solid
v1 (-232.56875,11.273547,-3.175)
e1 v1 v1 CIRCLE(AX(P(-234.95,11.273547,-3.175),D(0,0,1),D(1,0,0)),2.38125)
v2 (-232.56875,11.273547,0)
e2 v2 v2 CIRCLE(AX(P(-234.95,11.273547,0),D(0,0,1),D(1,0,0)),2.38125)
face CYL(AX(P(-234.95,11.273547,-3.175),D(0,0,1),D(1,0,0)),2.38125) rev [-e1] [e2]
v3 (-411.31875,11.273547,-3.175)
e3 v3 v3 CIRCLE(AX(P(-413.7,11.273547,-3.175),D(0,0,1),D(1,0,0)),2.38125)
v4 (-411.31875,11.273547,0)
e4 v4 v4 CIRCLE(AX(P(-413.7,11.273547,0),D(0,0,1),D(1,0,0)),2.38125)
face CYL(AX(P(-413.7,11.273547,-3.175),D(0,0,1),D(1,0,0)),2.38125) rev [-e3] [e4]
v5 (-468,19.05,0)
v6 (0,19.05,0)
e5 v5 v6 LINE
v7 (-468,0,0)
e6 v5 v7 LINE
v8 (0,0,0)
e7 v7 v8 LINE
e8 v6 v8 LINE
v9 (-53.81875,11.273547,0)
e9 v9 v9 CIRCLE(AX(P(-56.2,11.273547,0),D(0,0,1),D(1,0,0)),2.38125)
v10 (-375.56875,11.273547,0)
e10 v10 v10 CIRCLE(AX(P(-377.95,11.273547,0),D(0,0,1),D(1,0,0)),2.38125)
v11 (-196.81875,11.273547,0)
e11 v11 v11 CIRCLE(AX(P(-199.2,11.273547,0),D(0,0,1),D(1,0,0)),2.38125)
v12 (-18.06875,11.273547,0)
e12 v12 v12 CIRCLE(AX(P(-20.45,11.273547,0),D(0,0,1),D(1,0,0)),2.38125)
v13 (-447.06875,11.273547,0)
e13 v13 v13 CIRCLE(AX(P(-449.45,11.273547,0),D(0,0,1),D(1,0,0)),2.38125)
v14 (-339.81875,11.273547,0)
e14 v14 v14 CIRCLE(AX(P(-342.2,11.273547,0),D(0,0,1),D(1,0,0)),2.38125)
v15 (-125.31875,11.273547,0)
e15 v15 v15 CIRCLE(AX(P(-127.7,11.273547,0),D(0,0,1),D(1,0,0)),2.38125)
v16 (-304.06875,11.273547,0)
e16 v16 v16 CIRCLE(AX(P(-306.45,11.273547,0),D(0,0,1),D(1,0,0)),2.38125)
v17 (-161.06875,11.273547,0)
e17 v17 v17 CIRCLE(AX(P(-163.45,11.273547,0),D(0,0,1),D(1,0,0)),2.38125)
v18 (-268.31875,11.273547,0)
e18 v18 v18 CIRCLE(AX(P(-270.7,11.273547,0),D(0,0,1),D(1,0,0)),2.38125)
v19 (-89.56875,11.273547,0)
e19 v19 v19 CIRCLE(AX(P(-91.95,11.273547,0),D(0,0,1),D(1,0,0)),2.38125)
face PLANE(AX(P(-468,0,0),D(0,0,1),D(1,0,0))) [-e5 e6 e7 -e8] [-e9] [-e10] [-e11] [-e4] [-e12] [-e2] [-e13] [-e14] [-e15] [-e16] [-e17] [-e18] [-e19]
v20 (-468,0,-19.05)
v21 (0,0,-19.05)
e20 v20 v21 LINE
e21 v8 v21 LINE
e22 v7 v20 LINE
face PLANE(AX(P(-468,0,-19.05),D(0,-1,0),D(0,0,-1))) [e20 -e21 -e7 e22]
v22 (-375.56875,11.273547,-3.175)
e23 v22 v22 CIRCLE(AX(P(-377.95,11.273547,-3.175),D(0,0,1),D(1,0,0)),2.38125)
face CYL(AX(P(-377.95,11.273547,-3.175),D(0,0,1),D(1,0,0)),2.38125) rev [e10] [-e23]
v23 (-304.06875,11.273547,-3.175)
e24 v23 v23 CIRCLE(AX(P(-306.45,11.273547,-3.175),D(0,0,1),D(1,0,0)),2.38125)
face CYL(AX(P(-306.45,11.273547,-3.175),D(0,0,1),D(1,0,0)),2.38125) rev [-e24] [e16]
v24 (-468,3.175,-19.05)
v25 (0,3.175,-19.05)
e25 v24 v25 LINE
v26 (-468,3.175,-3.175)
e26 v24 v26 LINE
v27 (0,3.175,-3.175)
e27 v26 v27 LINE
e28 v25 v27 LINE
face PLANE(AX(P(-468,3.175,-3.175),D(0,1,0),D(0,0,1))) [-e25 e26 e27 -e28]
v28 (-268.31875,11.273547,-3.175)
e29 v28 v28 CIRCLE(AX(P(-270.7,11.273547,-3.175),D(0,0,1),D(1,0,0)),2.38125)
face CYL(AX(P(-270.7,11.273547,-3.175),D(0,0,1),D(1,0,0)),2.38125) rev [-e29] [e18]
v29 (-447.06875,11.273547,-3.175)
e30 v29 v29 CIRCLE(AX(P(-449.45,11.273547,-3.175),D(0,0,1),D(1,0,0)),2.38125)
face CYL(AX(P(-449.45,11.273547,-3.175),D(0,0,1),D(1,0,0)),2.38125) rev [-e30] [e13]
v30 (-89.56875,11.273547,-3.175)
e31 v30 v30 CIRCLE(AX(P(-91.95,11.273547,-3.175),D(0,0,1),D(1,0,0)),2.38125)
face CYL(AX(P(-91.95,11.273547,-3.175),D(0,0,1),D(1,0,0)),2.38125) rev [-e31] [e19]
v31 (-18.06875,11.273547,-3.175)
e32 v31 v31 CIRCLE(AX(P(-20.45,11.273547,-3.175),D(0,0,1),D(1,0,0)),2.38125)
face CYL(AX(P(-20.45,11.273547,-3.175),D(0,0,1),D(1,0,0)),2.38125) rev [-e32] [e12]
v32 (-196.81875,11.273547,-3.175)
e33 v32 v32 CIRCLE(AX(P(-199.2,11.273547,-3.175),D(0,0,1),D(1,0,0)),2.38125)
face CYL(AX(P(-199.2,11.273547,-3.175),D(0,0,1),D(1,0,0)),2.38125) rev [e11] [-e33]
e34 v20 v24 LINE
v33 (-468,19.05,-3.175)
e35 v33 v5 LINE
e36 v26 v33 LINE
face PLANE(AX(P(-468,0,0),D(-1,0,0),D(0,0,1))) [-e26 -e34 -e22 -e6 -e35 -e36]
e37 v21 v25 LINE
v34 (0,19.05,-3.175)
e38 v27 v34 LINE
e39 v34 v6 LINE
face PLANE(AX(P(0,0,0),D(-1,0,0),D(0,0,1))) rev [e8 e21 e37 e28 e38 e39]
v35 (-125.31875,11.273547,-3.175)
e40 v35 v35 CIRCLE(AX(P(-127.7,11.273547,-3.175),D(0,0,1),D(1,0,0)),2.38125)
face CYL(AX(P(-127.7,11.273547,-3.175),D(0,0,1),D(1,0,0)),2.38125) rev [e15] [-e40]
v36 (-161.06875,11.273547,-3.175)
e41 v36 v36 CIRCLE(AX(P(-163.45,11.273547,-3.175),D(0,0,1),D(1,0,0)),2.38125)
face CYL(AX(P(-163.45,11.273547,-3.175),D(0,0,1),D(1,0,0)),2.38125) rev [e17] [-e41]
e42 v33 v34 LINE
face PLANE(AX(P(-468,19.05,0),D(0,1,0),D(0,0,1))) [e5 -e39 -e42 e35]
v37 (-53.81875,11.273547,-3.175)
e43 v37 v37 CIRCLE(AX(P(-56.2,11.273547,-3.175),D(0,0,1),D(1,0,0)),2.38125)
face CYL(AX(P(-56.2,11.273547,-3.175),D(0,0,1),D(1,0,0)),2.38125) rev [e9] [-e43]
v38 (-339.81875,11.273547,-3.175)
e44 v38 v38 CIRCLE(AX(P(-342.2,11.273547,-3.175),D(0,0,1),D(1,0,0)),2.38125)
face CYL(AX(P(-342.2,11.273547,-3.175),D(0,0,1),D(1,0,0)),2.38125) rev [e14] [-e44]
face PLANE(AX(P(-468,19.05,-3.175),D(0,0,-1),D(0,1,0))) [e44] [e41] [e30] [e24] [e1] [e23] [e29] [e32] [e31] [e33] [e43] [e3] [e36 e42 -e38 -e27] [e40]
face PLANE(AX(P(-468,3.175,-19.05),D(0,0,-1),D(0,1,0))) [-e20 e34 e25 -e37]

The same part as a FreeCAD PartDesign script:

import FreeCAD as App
import Part
import Sketcher
Q = App.Units.Quantity


def add_polygon(sketch, points):
    """Adds a closed chain of lines whose ends are joined by coincident constraints."""
    first, n = sketch.GeometryCount, len(points)
    for a, b in zip(points, points[1:] + points[:1]):
        sketch.addGeometry(Part.LineSegment(App.Vector(*a, 0), App.Vector(*b, 0)), False)
    for i in range(n):
        sketch.addConstraint(Sketcher.Constraint("Coincident", first + i, 2, first + (i + 1) % n, 1))

doc = App.newDocument("Part")
body = doc.addObject("PartDesign::Body", "Body")

sketch1 = doc.addObject("Sketcher::SketchObject", "Sketch")
body.addObject(sketch1)
sketch1.AttachmentSupport = (doc.YZ_Plane, [""])
sketch1.MapMode = "FlatFace"
add_polygon(sketch1, [(19.05, 0), (0, 0), (0, -19.05), (3.175, -19.05), (3.175, -3.175), (19.05, -3.175)])
sketch1.addConstraint([
    Sketcher.Constraint("Horizontal", 0),
    Sketcher.Constraint("Vertical", 1),
    Sketcher.Constraint("Horizontal", 2),
    Sketcher.Constraint("Vertical", 3),
    Sketcher.Constraint("Horizontal", 4),
    Sketcher.Constraint("Vertical", 5),
    Sketcher.Constraint("Coincident", 0, 2, -1, 1),
    Sketcher.Constraint("Equal", 0, 1),
    Sketcher.Constraint("Equal", 4, 3),
    Sketcher.Constraint("DistanceX", 0, 2, 0, 1, Q("0.75 in")),
    Sketcher.Constraint("DistanceX", 2, 1, 2, 2, Q("0.125 in")),
])
pad1 = doc.addObject("PartDesign::Pad", "Pad")
body.addObject(pad1)
pad1.Profile = sketch1
pad1.Length = 468
pad1.Reversed = True

sketch2 = doc.addObject("Sketcher::SketchObject", "Sketch001")
body.addObject(sketch2)
sketch2.AttachmentSupport = (doc.XY_Plane, [""])
sketch2.MapMode = "FlatFace"
sketch2.addGeometry([
    Part.Circle(App.Vector(-449.45, 11.273547, 0), App.Vector(0, 0, 1), 2.38125),
    Part.Circle(App.Vector(-413.7, 11.273547, 0), App.Vector(0, 0, 1), 2.38125),
    Part.Circle(App.Vector(-377.95, 11.273547, 0), App.Vector(0, 0, 1), 2.38125),
    Part.Circle(App.Vector(-342.2, 11.273547, 0), App.Vector(0, 0, 1), 2.38125),
    Part.Circle(App.Vector(-306.45, 11.273547, 0), App.Vector(0, 0, 1), 2.38125),
    Part.Circle(App.Vector(-270.7, 11.273547, 0), App.Vector(0, 0, 1), 2.38125),
    Part.Circle(App.Vector(-234.95, 11.273547, 0), App.Vector(0, 0, 1), 2.38125),
    Part.Circle(App.Vector(-199.2, 11.273547, 0), App.Vector(0, 0, 1), 2.38125),
    Part.Circle(App.Vector(-163.45, 11.273547, 0), App.Vector(0, 0, 1), 2.38125),
    Part.Circle(App.Vector(-127.7, 11.273547, 0), App.Vector(0, 0, 1), 2.38125),
    Part.Circle(App.Vector(-91.95, 11.273547, 0), App.Vector(0, 0, 1), 2.38125),
    Part.Circle(App.Vector(-56.2, 11.273547, 0), App.Vector(0, 0, 1), 2.38125),
    Part.Circle(App.Vector(-20.45, 11.273547, 0), App.Vector(0, 0, 1), 2.38125),
], False)
sketch2.addConstraint([
    Sketcher.Constraint("Equal", 0, 1),
    Sketcher.Constraint("Equal", 1, 2),
    Sketcher.Constraint("Equal", 2, 3),
    Sketcher.Constraint("Equal", 3, 4),
    Sketcher.Constraint("Equal", 4, 5),
    Sketcher.Constraint("Equal", 5, 6),
    Sketcher.Constraint("Equal", 6, 7),
    Sketcher.Constraint("Equal", 7, 8),
    Sketcher.Constraint("Equal", 8, 9),
    Sketcher.Constraint("Equal", 9, 10),
    Sketcher.Constraint("Equal", 10, 11),
    Sketcher.Constraint("Equal", 11, 12),
    Sketcher.Constraint("Horizontal", 0, 3, 1, 3),
    Sketcher.Constraint("Horizontal", 1, 3, 2, 3),
    Sketcher.Constraint("Horizontal", 2, 3, 3, 3),
    Sketcher.Constraint("Horizontal", 3, 3, 4, 3),
    Sketcher.Constraint("Horizontal", 4, 3, 5, 3),
    Sketcher.Constraint("Horizontal", 5, 3, 6, 3),
    Sketcher.Constraint("Horizontal", 6, 3, 7, 3),
    Sketcher.Constraint("Horizontal", 7, 3, 8, 3),
    Sketcher.Constraint("Horizontal", 8, 3, 9, 3),
    Sketcher.Constraint("Horizontal", 9, 3, 10, 3),
    Sketcher.Constraint("Horizontal", 10, 3, 11, 3),
    Sketcher.Constraint("Horizontal", 11, 3, 12, 3),
    Sketcher.Constraint("Diameter", 0, Q("0.1875 in")),
    Sketcher.Constraint("DistanceX", 6, 3, -1, 1, Q("9.25 in")),
    Sketcher.Constraint("DistanceX", 0, 3, -1, 1, 449.45),
    Sketcher.Constraint("DistanceX", 1, 3, -1, 1, 413.7),
    Sketcher.Constraint("DistanceX", 2, 3, -1, 1, 377.95),
    Sketcher.Constraint("DistanceX", 3, 3, -1, 1, 342.2),
    Sketcher.Constraint("DistanceX", 4, 3, -1, 1, 306.45),
    Sketcher.Constraint("DistanceX", 5, 3, -1, 1, 270.7),
    Sketcher.Constraint("DistanceX", 7, 3, -1, 1, 199.2),
    Sketcher.Constraint("DistanceX", 8, 3, -1, 1, 163.45),
    Sketcher.Constraint("DistanceX", 9, 3, -1, 1, 127.7),
    Sketcher.Constraint("DistanceX", 10, 3, -1, 1, 91.95),
    Sketcher.Constraint("DistanceX", 11, 3, -1, 1, 56.2),
    Sketcher.Constraint("DistanceX", 12, 3, -1, 1, 20.45),
    Sketcher.Constraint("DistanceY", -1, 1, 0, 3, 11.273547),
])
pocket1 = doc.addObject("PartDesign::Pocket", "Pocket")
body.addObject(pocket1)
pocket1.Profile = sketch2
pocket1.Length = Q("0.125 in")

doc.recompute()
